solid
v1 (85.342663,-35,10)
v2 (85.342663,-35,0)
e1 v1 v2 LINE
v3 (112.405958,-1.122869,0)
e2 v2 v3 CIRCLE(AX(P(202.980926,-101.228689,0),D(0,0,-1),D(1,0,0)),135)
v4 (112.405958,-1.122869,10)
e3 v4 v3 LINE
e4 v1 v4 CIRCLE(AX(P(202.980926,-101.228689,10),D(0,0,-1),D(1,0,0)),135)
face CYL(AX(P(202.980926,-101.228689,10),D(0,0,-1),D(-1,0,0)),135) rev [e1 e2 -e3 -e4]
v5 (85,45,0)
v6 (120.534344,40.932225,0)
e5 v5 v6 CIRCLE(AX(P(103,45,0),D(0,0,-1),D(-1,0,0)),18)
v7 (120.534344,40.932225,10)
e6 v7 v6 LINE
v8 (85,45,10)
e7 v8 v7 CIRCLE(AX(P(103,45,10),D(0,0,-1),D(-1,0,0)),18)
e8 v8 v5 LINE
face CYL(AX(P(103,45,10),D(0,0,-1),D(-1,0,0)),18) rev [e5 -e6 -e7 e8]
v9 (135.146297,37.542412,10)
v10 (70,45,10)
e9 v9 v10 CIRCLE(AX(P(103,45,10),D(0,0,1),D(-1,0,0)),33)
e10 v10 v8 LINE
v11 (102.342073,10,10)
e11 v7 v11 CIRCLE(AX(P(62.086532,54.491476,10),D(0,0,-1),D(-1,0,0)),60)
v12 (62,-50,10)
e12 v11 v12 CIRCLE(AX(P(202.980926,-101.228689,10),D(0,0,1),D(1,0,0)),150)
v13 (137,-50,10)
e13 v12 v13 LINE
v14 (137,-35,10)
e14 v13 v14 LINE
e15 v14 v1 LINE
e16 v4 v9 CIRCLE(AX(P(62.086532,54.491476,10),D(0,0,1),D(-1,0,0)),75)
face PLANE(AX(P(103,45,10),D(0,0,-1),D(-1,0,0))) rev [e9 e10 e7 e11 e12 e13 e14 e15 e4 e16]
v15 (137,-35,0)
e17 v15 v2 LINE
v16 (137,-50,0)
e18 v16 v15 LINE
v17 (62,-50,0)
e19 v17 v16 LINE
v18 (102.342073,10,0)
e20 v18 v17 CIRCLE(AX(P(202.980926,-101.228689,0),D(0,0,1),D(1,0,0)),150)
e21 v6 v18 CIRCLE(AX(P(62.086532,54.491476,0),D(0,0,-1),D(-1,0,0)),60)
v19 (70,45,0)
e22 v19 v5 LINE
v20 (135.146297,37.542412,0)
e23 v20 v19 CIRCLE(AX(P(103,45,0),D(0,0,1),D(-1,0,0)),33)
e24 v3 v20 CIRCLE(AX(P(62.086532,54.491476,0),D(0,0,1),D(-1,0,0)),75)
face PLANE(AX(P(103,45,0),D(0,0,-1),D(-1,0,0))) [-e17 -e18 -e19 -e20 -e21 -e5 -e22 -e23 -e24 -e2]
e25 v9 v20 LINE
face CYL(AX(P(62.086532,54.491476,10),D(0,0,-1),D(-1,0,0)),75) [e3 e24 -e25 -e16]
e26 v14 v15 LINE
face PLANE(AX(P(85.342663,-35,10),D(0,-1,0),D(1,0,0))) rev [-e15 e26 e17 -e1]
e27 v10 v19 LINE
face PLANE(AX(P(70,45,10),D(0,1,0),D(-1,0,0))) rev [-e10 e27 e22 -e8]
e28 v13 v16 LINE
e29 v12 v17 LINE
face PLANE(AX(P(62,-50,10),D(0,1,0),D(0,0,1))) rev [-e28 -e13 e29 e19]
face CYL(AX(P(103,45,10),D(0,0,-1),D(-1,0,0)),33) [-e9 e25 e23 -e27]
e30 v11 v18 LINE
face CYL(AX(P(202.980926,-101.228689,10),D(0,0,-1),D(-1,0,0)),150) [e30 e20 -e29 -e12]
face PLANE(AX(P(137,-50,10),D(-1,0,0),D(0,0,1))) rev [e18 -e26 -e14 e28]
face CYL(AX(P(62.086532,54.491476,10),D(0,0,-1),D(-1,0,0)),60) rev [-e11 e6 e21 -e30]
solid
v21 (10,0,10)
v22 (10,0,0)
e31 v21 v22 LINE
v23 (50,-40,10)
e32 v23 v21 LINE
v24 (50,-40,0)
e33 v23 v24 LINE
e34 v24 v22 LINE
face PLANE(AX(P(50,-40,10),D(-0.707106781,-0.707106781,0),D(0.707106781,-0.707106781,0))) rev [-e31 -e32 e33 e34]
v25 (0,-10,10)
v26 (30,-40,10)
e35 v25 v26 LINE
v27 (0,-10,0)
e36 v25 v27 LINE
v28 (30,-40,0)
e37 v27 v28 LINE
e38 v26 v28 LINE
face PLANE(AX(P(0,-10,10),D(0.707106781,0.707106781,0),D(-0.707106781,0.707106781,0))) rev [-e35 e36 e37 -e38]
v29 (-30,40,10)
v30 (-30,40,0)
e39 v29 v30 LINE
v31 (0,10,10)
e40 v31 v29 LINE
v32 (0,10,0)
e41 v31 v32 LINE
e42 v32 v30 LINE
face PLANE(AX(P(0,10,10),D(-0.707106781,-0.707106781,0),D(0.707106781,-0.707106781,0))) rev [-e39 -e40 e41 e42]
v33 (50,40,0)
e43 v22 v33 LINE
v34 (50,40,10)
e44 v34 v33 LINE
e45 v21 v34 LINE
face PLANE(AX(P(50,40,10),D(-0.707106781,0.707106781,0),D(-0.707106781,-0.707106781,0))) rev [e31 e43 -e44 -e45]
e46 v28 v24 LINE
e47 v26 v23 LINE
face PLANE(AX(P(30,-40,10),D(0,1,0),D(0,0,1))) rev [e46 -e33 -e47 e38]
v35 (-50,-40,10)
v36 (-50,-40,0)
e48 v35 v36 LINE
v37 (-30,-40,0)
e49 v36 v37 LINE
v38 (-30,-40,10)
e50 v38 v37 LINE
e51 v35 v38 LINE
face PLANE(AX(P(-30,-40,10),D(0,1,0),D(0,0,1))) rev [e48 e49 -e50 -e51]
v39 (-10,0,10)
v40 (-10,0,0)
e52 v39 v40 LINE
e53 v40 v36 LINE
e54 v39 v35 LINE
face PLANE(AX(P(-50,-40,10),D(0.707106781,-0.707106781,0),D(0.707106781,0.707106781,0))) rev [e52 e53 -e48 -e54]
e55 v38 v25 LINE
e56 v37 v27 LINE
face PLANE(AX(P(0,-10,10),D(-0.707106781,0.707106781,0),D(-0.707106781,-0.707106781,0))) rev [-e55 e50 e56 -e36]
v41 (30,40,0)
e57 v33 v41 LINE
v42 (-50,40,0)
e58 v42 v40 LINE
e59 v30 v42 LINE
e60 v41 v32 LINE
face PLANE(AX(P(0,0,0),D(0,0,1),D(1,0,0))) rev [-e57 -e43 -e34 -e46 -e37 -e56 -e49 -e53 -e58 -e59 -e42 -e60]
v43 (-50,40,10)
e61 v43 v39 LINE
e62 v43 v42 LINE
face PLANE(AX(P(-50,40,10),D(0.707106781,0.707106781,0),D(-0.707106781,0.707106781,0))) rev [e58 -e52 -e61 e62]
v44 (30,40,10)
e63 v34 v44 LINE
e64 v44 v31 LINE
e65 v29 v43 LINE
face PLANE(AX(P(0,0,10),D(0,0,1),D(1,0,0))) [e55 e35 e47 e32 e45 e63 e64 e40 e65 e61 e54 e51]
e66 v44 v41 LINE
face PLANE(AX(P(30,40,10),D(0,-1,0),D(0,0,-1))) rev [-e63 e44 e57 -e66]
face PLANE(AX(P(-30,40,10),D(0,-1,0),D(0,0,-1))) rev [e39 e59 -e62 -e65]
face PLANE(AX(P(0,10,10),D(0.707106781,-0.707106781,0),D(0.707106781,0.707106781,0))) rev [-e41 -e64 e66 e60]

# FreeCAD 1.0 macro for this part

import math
import FreeCAD as App
import Part
import Sketcher
Q = App.Units.Quantity

doc = App.newDocument("Part")
params = doc.addObject("Spreadsheet::Sheet", "Params")
for row, (alias, value) in enumerate([
    ("sketch1_width", "20 mm"),
    ("pad1_length", "10 mm"),
    ("sketch2_radius", "135 mm"),
    ("sketch2_radius2", "75 mm"),
    ("sketch2_radius3", "33 mm"),
    ("sketch2_radius4", "18 mm"),
    ("sketch2_width", "75 mm"),
    ("pad2_length", "10 mm"),
], start=1):
    params.set(f"A{row}", alias)
    params.set(f"B{row}", "=" + value)
    params.setAlias(f"B{row}", alias)

body = doc.addObject("PartDesign::Body", "Body")

# Sketch on XY plane
sketch1 = doc.addObject("Sketcher::SketchObject", "Sketch")
body.addObject(sketch1)
sketch1.AttachmentSupport = (doc.XY_Plane, [""])
sketch1.MapMode = "FlatFace"
sketch1.addGeometry([
    Part.LineSegment(App.Vector(-50, 40, 0), App.Vector(-10, 0, 0)),  # 0
    Part.LineSegment(App.Vector(-10, 0, 0), App.Vector(-50, -40, 0)),  # 1
    Part.LineSegment(App.Vector(-50, -40, 0), App.Vector(-30, -40, 0)),  # 2
    Part.LineSegment(App.Vector(-30, -40, 0), App.Vector(0, -10, 0)),  # 3
    Part.LineSegment(App.Vector(0, -10, 0), App.Vector(30, -40, 0)),  # 4
    Part.LineSegment(App.Vector(30, -40, 0), App.Vector(50, -40, 0)),  # 5
    Part.LineSegment(App.Vector(50, -40, 0), App.Vector(10, 0, 0)),  # 6
    Part.LineSegment(App.Vector(10, 0, 0), App.Vector(50, 40, 0)),  # 7
    Part.LineSegment(App.Vector(50, 40, 0), App.Vector(30, 40, 0)),  # 8
    Part.LineSegment(App.Vector(30, 40, 0), App.Vector(0, 10, 0)),  # 9
    Part.LineSegment(App.Vector(0, 10, 0), App.Vector(-30, 40, 0)),  # 10
    Part.LineSegment(App.Vector(-30, 40, 0), App.Vector(-50, 40, 0)),  # 11
], False)
sketch1.addConstraint([
    Sketcher.Constraint("Coincident", 0, 2, 1, 1),
    Sketcher.Constraint("Coincident", 1, 2, 2, 1),
    Sketcher.Constraint("Coincident", 2, 2, 3, 1),
    Sketcher.Constraint("Coincident", 3, 2, 4, 1),
    Sketcher.Constraint("Coincident", 4, 2, 5, 1),
    Sketcher.Constraint("Coincident", 5, 2, 6, 1),
    Sketcher.Constraint("Coincident", 6, 2, 7, 1),
    Sketcher.Constraint("Coincident", 7, 2, 8, 1),
    Sketcher.Constraint("Coincident", 8, 2, 9, 1),
    Sketcher.Constraint("Coincident", 9, 2, 10, 1),
    Sketcher.Constraint("Coincident", 10, 2, 11, 1),
    Sketcher.Constraint("Coincident", 11, 2, 0, 1),
    Sketcher.Constraint("Horizontal", 2),
    Sketcher.Constraint("Horizontal", 5),
    Sketcher.Constraint("Horizontal", 8),
    Sketcher.Constraint("Horizontal", 11),
    Sketcher.Constraint("Symmetric", 0, 2, 6, 2, -1, 1),
    Sketcher.Constraint("Symmetric", 1, 2, 7, 2, -1, 1),
    Sketcher.Constraint("Symmetric", 3, 2, 9, 2, -1, 1),
    Sketcher.Constraint("Symmetric", 4, 2, 10, 2, -1, 1),
    Sketcher.Constraint("Symmetric", 2, 2, 4, 2, -2),
    Sketcher.Constraint("PointOnObject", 0, 2, -1),
    Sketcher.Constraint("PointOnObject", 3, 2, -2),
    Sketcher.Constraint("Perpendicular", 0, 1),
    Sketcher.Constraint("Parallel", 1, 3),
    Sketcher.Constraint("Perpendicular", 3, 4),
    Sketcher.Constraint("Parallel", 4, 6),
    Sketcher.Constraint("Parallel", 7, 9),
    Sketcher.Constraint("DistanceX", 2, 1, 2, 2, Q("20 mm")),
    Sketcher.Constraint("DistanceX", 0, 2, -1, 1, Q("10 mm")),
    Sketcher.Constraint("DistanceX", 1, 2, -1, 1, Q("50 mm")),
])
sketch1.setExpression("Constraints[28]", "Params.sketch1_width")
pad1 = doc.addObject("PartDesign::Pad", "Pad")
body.addObject(pad1)
pad1.Profile = sketch1
pad1.setExpression("Length", "Params.pad1_length")
body2 = doc.addObject("PartDesign::Body", "Body001")

# Sketch on XY plane
sketch2 = doc.addObject("Sketcher::SketchObject", "Sketch001")
body2.addObject(sketch2)
sketch2.AttachmentSupport = (doc.getObject("XY_Plane001"), [""])
sketch2.MapMode = "FlatFace"
sketch2.addGeometry([
    Part.LineSegment(App.Vector(137, -35, 0), App.Vector(85, -35, 0)),  # 0
    Part.ArcOfCircle(Part.Circle(App.Vector(203, -101, 0), App.Vector(0, 0, 1), 135), math.radians(132.14), math.radians(150.62)),  # 1
    Part.ArcOfCircle(Part.Circle(App.Vector(62, 54, 0), App.Vector(0, 0, 1), 75), math.radians(-48), math.radians(-13)),  # 2
    Part.ArcOfCircle(Part.Circle(App.Vector(103, 45, 0), App.Vector(0, 0, 1), 33), math.radians(-13), math.radians(180)),  # 3
    Part.LineSegment(App.Vector(70, 45, 0), App.Vector(85, 45, 0)),  # 4
    Part.ArcOfCircle(Part.Circle(App.Vector(103, 45, 0), App.Vector(0, 0, 1), 18), math.radians(-13), math.radians(180)),  # 5
    Part.ArcOfCircle(Part.Circle(App.Vector(62, 54, 0), App.Vector(0, 0, 1), 60), math.radians(-48), math.radians(-13)),  # 6
    Part.ArcOfCircle(Part.Circle(App.Vector(203, -101, 0), App.Vector(0, 0, 1), 150), math.radians(132), math.radians(160)),  # 7
    Part.LineSegment(App.Vector(62, -50, 0), App.Vector(137, -50, 0)),  # 8
    Part.LineSegment(App.Vector(137, -50, 0), App.Vector(137, -35, 0)),  # 9
], False)
sketch2.addConstraint([
    Sketcher.Constraint("Coincident", 0, 2, 1, 2),
    Sketcher.Constraint("Tangent", 1, 1, 2, 1),
    Sketcher.Constraint("Tangent", 2, 2, 3, 1),
    Sketcher.Constraint("Coincident", 3, 2, 4, 1),
    Sketcher.Constraint("Coincident", 4, 2, 5, 2),
    Sketcher.Constraint("Tangent", 5, 1, 6, 2),
    Sketcher.Constraint("Tangent", 6, 1, 7, 1),
    Sketcher.Constraint("Coincident", 7, 2, 8, 1),
    Sketcher.Constraint("Coincident", 8, 2, 9, 1),
    Sketcher.Constraint("Coincident", 9, 2, 0, 1),
    Sketcher.Constraint("Horizontal", 0),
    Sketcher.Constraint("Horizontal", 4),
    Sketcher.Constraint("Horizontal", 8),
    Sketcher.Constraint("Vertical", 9),
    Sketcher.Constraint("Coincident", 5, 3, 3, 3),
    Sketcher.Constraint("Coincident", 6, 3, 2, 3),
    Sketcher.Constraint("Coincident", 7, 3, 1, 3),
    Sketcher.Constraint("Horizontal", 5, 3, 3, 2),
    Sketcher.Constraint("Equal", 4, 9),
    Sketcher.Constraint("Radius", 1, Q("135 mm")),
    Sketcher.Constraint("Radius", 2, Q("75 mm")),
    Sketcher.Constraint("Radius", 3, Q("33 mm")),
    Sketcher.Constraint("Radius", 5, Q("18 mm")),
    Sketcher.Constraint("DistanceX", 8, 1, 8, 2, Q("75 mm")),
    Sketcher.Constraint("DistanceX", -1, 1, 3, 3, Q("103 mm")),
    Sketcher.Constraint("DistanceY", -1, 1, 3, 3, Q("45 mm")),
    Sketcher.Constraint("DistanceY", 0, 2, -1, 1, Q("35 mm")),
    Sketcher.Constraint("DistanceY", -1, 1, 6, 1, Q("10 mm")),
    Sketcher.Constraint("DistanceX", -1, 1, 7, 2, Q("62 mm")),
])
sketch2.setExpression("Constraints[19]", "Params.sketch2_radius")
sketch2.setExpression("Constraints[20]", "Params.sketch2_radius2")
sketch2.setExpression("Constraints[21]", "Params.sketch2_radius3")
sketch2.setExpression("Constraints[22]", "Params.sketch2_radius4")
sketch2.setExpression("Constraints[23]", "Params.sketch2_width")
pad2 = doc.addObject("PartDesign::Pad", "Pad001")
body2.addObject(pad2)
pad2.Profile = sketch2
pad2.setExpression("Length", "Params.pad2_length")

doc.recompute()
